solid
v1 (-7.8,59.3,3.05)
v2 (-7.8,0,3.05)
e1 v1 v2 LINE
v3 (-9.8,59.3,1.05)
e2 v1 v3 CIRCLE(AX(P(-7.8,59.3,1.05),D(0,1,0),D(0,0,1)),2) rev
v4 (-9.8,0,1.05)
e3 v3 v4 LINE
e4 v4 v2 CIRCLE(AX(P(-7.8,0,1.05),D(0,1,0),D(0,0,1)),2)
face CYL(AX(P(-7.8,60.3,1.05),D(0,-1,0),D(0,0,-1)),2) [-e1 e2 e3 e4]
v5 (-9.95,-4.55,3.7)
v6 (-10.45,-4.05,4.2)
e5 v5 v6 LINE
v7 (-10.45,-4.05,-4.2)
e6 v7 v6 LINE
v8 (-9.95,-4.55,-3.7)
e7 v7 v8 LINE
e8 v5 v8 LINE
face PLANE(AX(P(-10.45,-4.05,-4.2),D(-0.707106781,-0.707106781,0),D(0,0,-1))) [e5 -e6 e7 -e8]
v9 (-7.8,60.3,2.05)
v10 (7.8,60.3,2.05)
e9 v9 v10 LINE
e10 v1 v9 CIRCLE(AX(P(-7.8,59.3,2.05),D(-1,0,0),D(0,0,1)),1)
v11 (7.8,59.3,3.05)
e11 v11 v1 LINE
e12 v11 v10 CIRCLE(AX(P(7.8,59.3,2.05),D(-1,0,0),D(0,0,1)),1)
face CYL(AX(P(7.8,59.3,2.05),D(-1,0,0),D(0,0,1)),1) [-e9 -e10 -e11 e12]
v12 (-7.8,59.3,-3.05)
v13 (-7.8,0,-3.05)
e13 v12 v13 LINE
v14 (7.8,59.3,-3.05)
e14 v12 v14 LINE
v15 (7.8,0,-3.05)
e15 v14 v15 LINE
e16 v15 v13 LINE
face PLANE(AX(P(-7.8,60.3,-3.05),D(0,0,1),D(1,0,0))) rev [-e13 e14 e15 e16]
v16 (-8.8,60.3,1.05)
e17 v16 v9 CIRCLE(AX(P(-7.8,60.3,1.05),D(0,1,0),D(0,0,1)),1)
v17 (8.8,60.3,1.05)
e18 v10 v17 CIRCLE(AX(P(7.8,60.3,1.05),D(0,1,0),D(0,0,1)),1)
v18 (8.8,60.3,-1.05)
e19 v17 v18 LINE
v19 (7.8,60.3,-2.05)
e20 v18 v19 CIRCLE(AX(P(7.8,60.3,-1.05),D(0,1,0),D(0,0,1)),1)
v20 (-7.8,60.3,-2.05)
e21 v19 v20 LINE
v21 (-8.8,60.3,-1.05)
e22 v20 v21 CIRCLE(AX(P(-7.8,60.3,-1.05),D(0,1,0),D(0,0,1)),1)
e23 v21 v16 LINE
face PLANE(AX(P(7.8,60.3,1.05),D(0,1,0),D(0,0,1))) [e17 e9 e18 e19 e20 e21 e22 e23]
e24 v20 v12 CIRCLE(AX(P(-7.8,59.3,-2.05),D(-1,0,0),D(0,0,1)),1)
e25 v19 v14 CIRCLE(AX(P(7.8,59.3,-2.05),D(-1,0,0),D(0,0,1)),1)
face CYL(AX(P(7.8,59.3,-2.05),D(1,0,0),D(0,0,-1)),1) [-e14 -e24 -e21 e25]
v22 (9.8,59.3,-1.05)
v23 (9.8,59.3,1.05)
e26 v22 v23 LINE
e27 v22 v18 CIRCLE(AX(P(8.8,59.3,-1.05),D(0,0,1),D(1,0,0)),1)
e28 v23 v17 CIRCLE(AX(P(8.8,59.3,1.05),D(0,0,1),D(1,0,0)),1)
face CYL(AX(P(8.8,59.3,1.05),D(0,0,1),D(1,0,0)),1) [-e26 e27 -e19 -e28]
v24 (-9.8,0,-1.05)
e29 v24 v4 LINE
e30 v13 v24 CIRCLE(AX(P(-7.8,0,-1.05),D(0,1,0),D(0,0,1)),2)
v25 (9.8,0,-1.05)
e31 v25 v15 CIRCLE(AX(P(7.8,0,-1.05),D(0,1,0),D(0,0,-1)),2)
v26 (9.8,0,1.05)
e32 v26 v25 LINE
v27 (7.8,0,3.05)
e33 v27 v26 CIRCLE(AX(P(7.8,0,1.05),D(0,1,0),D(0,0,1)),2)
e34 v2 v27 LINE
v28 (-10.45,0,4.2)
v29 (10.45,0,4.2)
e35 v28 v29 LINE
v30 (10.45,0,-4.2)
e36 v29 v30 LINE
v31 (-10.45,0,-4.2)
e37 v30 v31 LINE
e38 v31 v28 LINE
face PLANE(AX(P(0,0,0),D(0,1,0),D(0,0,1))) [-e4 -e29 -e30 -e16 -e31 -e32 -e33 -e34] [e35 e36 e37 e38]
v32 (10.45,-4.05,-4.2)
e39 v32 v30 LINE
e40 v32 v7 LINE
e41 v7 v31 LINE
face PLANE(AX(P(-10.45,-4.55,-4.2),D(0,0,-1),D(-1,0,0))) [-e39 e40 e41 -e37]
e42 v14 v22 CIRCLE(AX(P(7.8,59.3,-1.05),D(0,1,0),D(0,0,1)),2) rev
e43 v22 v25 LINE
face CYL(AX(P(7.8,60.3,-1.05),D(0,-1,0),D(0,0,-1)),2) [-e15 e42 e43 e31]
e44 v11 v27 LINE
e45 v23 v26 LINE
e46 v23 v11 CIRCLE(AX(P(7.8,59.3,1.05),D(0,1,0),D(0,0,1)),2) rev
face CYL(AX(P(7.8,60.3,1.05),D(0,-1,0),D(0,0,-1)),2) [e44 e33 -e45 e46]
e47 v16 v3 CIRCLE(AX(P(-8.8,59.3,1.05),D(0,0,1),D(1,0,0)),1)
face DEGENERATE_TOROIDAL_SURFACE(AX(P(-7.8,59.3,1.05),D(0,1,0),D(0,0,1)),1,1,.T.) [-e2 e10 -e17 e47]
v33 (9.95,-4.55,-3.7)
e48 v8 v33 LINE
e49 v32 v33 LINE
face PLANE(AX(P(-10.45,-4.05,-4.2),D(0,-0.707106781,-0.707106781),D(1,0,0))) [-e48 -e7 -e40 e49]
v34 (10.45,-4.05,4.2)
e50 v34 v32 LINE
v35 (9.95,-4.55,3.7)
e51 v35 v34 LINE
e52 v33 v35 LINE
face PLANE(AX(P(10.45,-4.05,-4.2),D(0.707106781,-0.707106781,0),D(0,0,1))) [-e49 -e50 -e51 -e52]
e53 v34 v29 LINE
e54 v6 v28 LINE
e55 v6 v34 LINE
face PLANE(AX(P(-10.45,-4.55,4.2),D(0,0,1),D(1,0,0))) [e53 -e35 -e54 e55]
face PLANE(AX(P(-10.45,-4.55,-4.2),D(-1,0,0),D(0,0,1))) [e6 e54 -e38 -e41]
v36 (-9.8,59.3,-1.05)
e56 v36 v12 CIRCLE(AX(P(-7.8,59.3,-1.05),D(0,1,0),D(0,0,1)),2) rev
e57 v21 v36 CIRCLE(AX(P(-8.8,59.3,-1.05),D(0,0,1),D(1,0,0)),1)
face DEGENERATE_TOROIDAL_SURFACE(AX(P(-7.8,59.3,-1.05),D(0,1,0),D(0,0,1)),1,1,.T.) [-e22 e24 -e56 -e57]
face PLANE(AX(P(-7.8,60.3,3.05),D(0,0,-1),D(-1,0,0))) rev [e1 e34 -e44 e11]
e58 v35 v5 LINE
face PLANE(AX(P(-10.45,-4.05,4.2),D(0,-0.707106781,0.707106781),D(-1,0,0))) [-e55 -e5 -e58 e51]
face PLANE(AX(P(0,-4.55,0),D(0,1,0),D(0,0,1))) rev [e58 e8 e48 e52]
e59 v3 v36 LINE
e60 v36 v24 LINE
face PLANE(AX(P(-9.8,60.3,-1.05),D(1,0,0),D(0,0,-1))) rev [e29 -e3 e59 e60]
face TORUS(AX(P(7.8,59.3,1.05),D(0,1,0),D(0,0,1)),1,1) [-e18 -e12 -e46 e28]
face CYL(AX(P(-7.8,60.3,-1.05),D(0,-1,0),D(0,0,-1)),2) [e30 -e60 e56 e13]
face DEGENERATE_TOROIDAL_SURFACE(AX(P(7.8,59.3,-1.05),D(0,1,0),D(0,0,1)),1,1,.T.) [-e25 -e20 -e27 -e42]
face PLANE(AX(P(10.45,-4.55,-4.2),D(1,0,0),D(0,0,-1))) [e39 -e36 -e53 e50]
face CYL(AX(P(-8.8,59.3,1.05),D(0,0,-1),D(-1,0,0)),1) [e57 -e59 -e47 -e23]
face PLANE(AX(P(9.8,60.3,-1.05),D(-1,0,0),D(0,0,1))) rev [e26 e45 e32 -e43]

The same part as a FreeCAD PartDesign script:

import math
import FreeCAD as App
import Part
import Sketcher
from FreeCAD import Vector
Q = App.Units.Quantity


def edges_at(feature, points):
    """Names of the edges that pass closest to the given points."""
    edges = feature.Shape.Edges
    near = lambda p: min(range(len(edges)), key=lambda i: edges[i].distToShape(Part.Vertex(*p))[0])
    return sorted({f"Edge{near(p) + 1}" for p in points})


def add_polygon(sketch, points):
    """Adds a closed chain of lines whose ends are joined by coincident constraints."""
    first, n = sketch.GeometryCount, len(points)
    for a, b in zip(points, points[1:] + points[:1]):
        sketch.addGeometry(Part.LineSegment(App.Vector(*a, 0), App.Vector(*b, 0)), False)
    for i in range(n):
        sketch.addConstraint(Sketcher.Constraint("Coincident", first + i, 2, first + (i + 1) % n, 1))

doc = App.newDocument("Part")
body = doc.addObject("PartDesign::Body", "Body")

# Sketch on XZ plane
sketch1 = body.newObject("Sketcher::SketchObject", "Sketch")
sketch1.AttachmentSupport = (doc.getObject("XZ_Plane"), [""])
sketch1.MapMode = "FlatFace"
sketch1.addGeometry([
    Part.LineSegment(Vector(7.8, -3, 0), Vector(-7.8, -3, 0)),  # 0
    Part.ArcOfCircle(Part.Circle(Vector(-7.8, -1, 0), Vector(0, 0, 1), 2), math.radians(-180), math.radians(-90)),  # 1
    Part.LineSegment(Vector(-9.8, -1.1, 0), Vector(-9.8, 1.1, 0)),  # 2
    Part.ArcOfCircle(Part.Circle(Vector(-7.8, 1, 0), Vector(0, 0, 1), 2), math.radians(90), math.radians(180)),  # 3
    Part.LineSegment(Vector(-7.8, 3, 0), Vector(7.8, 3, 0)),  # 4
    Part.ArcOfCircle(Part.Circle(Vector(7.8, 1, 0), Vector(0, 0, 1), 2), math.radians(0), math.radians(90)),  # 5
    Part.LineSegment(Vector(9.8, 1.1, 0), Vector(9.8, -1.1, 0)),  # 6
    Part.ArcOfCircle(Part.Circle(Vector(7.8, -1, 0), Vector(0, 0, 1), 2), math.radians(-90), math.radians(0)),  # 7
], False)
sketch1.addConstraint([
    Sketcher.Constraint("Tangent", 0, 2, 1, 2),
    Sketcher.Constraint("Tangent", 1, 1, 2, 1),
    Sketcher.Constraint("Tangent", 2, 2, 3, 2),
    Sketcher.Constraint("Tangent", 3, 1, 4, 1),
    Sketcher.Constraint("Tangent", 4, 2, 5, 2),
    Sketcher.Constraint("Tangent", 5, 1, 6, 1),
    Sketcher.Constraint("Tangent", 6, 2, 7, 2),
    Sketcher.Constraint("Tangent", 7, 1, 0, 1),
    Sketcher.Constraint("Horizontal", 0),
    Sketcher.Constraint("Vertical", 2),
    Sketcher.Constraint("Horizontal", 4),
    Sketcher.Constraint("Vertical", 6),
    Sketcher.Constraint("Equal", 1, 3),
    Sketcher.Constraint("Equal", 3, 5),
    Sketcher.Constraint("Equal", 5, 7),
    Sketcher.Constraint("Symmetric", 1, 3, 5, 3, -1, 1),
    Sketcher.Constraint("Radius", 1, Q("2 mm")),
    Sketcher.Constraint("DistanceX", 0, 2, 0, 1, Q("15.6 mm")),
    Sketcher.Constraint("DistanceY", 2, 1, 2, 2, Q("2.1 mm")),
])
pad1 = body.newObject("PartDesign::Pad", "Pad")
pad1.Profile = sketch1
pad1.Length = 60.3
pad1.Reversed = True

# Sketch on XZ plane
sketch2 = body.newObject("Sketcher::SketchObject", "Sketch001")
sketch2.AttachmentSupport = (doc.getObject("XZ_Plane"), [""])
sketch2.MapMode = "FlatFace"
add_polygon(sketch2, [(-10, -4), (-10, 4), (10, 4), (10, -4)])  # lines 0-3
sketch2.addConstraint([
    Sketcher.Constraint("Vertical", 0),
    Sketcher.Constraint("Horizontal", 1),
    Sketcher.Constraint("Vertical", 2),
    Sketcher.Constraint("Horizontal", 3),
    Sketcher.Constraint("Symmetric", 0, 2, 2, 2, -1, 1),
    Sketcher.Constraint("DistanceX", 1, 1, 1, 2, Q("20.9 mm")),
    Sketcher.Constraint("DistanceY", 0, 1, 0, 2, Q("8.4 mm")),
])
pad2 = body.newObject("PartDesign::Pad", "Pad001")
pad2.Profile = sketch2
pad2.Length = 4.55
doc.recompute()

fillet = body.newObject("PartDesign::Fillet", "Fillet")
fillet.Base = (pad2, edges_at(pad2, [
    (9.214, 60.3, -2.464),
    (0, 60.3, -3.05),
    (-9.214, 60.3, -2.464),
    (-9.8, 60.3, 0),
    (-9.214, 60.3, 2.464),
    (0, 60.3, 3.05),
    (9.214, 60.3, 2.464),
    (9.8, 60.3, 0),
]))
fillet.Radius = 1
doc.recompute()

chamfer = body.newObject("PartDesign::Chamfer", "Chamfer")
chamfer.Base = (fillet, edges_at(fillet, [
    (10.45, -4.55, 0),
    (0, -4.55, 4.2),
    (-10.45, -4.55, 0),
    (0, -4.55, -4.2),
]))
chamfer.Size = 0.5

doc.recompute()
